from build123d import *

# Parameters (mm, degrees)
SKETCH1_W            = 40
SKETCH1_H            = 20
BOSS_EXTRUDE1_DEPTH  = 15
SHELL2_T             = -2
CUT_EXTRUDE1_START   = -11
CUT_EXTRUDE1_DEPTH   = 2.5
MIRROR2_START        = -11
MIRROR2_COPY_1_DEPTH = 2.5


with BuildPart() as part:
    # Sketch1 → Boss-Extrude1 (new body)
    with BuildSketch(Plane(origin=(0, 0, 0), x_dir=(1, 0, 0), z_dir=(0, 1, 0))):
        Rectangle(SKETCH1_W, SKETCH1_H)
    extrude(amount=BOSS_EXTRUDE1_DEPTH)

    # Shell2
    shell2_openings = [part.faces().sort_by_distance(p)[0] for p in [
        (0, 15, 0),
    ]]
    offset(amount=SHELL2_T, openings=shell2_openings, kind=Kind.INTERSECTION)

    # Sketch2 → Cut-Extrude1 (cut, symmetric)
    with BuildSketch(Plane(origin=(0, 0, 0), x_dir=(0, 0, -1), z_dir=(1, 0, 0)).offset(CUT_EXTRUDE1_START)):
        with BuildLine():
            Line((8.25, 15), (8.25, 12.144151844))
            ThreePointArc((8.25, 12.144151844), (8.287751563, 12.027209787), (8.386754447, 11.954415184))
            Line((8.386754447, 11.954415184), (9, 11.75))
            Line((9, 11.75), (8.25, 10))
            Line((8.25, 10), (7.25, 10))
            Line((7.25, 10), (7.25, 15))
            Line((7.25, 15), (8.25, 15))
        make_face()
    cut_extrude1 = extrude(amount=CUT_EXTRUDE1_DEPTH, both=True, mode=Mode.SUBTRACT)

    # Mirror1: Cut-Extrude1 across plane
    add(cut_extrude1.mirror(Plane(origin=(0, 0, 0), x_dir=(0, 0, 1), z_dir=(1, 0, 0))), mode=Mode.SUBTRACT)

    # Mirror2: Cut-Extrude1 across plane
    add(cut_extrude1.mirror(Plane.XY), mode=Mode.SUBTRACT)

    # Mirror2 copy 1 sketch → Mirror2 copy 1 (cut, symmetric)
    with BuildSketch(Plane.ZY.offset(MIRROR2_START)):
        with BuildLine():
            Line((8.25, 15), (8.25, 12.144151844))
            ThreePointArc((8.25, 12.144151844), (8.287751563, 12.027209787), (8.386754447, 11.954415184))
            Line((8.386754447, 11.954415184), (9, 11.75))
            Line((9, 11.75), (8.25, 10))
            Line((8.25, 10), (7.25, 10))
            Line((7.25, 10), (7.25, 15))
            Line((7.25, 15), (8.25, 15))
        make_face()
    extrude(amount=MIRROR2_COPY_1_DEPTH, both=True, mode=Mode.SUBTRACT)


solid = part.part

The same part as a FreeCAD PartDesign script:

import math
import FreeCAD as App
import Part
import Sketcher

V = App.Vector


def faces_at(feature, points):
    """Names of the faces that lie closest to the given points."""
    faces = feature.Shape.Faces
    near = lambda p: min(range(len(faces)), key=lambda i: faces[i].distToShape(Part.Vertex(*p))[0])
    return sorted({f"Face{near(p) + 1}" for p in points})


def add_polygon(sketch, points):
    """Adds a closed chain of lines whose ends are joined by coincident constraints."""
    first, n = sketch.GeometryCount, len(points)
    for a, b in zip(points, points[1:] + points[:1]):
        sketch.addGeometry(Part.LineSegment(App.Vector(*a, 0), App.Vector(*b, 0)), False)
    for i in range(n):
        sketch.addConstraint(Sketcher.Constraint("Coincident", first + i, 2, first + (i + 1) % n, 1))

doc = App.newDocument("Part")
body = doc.addObject("PartDesign::Body", "Body")

sketch1 = body.newObject("Sketcher::SketchObject", "Sketch")
sketch1.AttachmentSupport = (doc.getObject("XZ_Plane"), [""])
sketch1.MapMode = "FlatFace"
add_polygon(sketch1, [(-20, -10), (-20, 10), (20, 10), (20, -10)])
sketch1.addConstraint([
    Sketcher.Constraint("Vertical", 0),
    Sketcher.Constraint("Horizontal", 1),
    Sketcher.Constraint("Vertical", 2),
    Sketcher.Constraint("Horizontal", 3),
    Sketcher.Constraint("Symmetric", 0, 2, 2, 2, -1, 1),
    Sketcher.Constraint("DistanceX", 1, 1, 1, 2, 40.0),
    Sketcher.Constraint("DistanceY", 0, 1, 0, 2, 20.0),
])
pad1 = body.newObject("PartDesign::Pad", "Pad")
pad1.Profile = sketch1
pad1.Length = 15
pad1.Reversed = True
doc.recompute()

thickness = body.newObject("PartDesign::Thickness", "Thickness")
thickness.Base = (pad1, faces_at(pad1, [(0, 15, 0)]))
thickness.Value = 2
thickness.Reversed = True
thickness.Join = "Intersection"

sketch2 = body.newObject("Sketcher::SketchObject", "Sketch001")
sketch2.AttachmentSupport = (doc.getObject("YZ_Plane"), [""])
sketch2.MapMode = "FlatFace"
sketch2.AttachmentOffset = App.Placement(V(0, 0, -11), App.Rotation())
sketch2.addGeometry([
    Part.LineSegment(V(12.14, -8.25, 0), V(15, -8.25, 0)),
    Part.LineSegment(V(15, -8.25, 0), V(15, -7.25, 0)),
    Part.LineSegment(V(15, -7.25, 0), V(10, -7.25, 0)),
    Part.LineSegment(V(10, -7.25, 0), V(10, -8.25, 0)),
    Part.LineSegment(V(10, -8.25, 0), V(11.75, -9, 0)),
    Part.LineSegment(V(11.75, -9, 0), V(11.95, -8.39, 0)),
    Part.ArcOfCircle(Part.Circle(V(12.14, -8.45, 0), V(0, 0, 1), 0.2), math.radians(90), math.radians(162)),
], False)
sketch2.addConstraint([
    Sketcher.Constraint("Coincident", 0, 2, 1, 1),
    Sketcher.Constraint("Coincident", 1, 2, 2, 1),
    Sketcher.Constraint("Coincident", 2, 2, 3, 1),
    Sketcher.Constraint("Coincident", 3, 2, 4, 1),
    Sketcher.Constraint("Coincident", 4, 2, 5, 1),
    Sketcher.Constraint("Tangent", 5, 2, 6, 2),
    Sketcher.Constraint("Tangent", 6, 1, 0, 1),
    Sketcher.Constraint("Horizontal", 0),
    Sketcher.Constraint("Vertical", 1),
    Sketcher.Constraint("Horizontal", 2),
    Sketcher.Constraint("Vertical", 3),
    Sketcher.Constraint("Horizontal", 0, 2, 3, 2),
    Sketcher.Constraint("Radius", 6, 0.2),
    Sketcher.Constraint("DistanceX", 2, 2, 2, 1, 5.0),
    Sketcher.Constraint("DistanceY", 1, 1, 1, 2, 1.0),
    Sketcher.Constraint("DistanceX", -1, 1, 0, 2, 15.0),
    Sketcher.Constraint("DistanceY", 4, 2, -1, 1, 9.0),
    Sketcher.Constraint("DistanceY", 6, 3, -1, 1, 8.45),
    Sketcher.Constraint("DistanceX", -1, 1, 4, 2, 11.75),
    Sketcher.Constraint("DistanceX", 0, 1, 0, 2, 2.855848),
])
pocket1 = body.newObject("PartDesign::Pocket", "Pocket")
pocket1.Profile = sketch2
pocket1.Length = 5
pocket1.Midplane = True
doc.recompute()

mirrored = body.newObject("PartDesign::Mirrored", "Mirrored")
mirrored.Originals = [pocket1]
mirrored.MirrorPlane = (doc.getObject("YZ_Plane"), [""])
body.Tip = mirrored
doc.recompute()

mirrored2 = body.newObject("PartDesign::Mirrored", "Mirrored001")
mirrored2.Originals = [pocket1]
mirrored2.MirrorPlane = (doc.getObject("XY_Plane"), [""])
body.Tip = mirrored2

sketch3 = body.newObject("Sketcher::SketchObject", "Sketch002")
sketch3.AttachmentSupport = (doc.getObject("YZ_Plane"), [""])
sketch3.MapMode = "FlatFace"
sketch3.AttachmentOffset = App.Placement(V(0, 0, 11), App.Rotation())
sketch3.addGeometry([
    Part.LineSegment(V(12.14, 8.25, 0), V(15, 8.25, 0)),
    Part.LineSegment(V(15, 8.25, 0), V(15, 7.25, 0)),
    Part.LineSegment(V(15, 7.25, 0), V(10, 7.25, 0)),
    Part.LineSegment(V(10, 7.25, 0), V(10, 8.25, 0)),
    Part.LineSegment(V(10, 8.25, 0), V(11.75, 9, 0)),
    Part.LineSegment(V(11.75, 9, 0), V(11.95, 8.39, 0)),
    Part.ArcOfCircle(Part.Circle(V(12.14, 8.45, 0), V(0, 0, 1), 0.2), math.radians(-162), math.radians(-90)),
], False)
sketch3.addConstraint([
    Sketcher.Constraint("Coincident", 0, 2, 1, 1),
    Sketcher.Constraint("Coincident", 1, 2, 2, 1),
    Sketcher.Constraint("Coincident", 2, 2, 3, 1),
    Sketcher.Constraint("Coincident", 3, 2, 4, 1),
    Sketcher.Constraint("Coincident", 4, 2, 5, 1),
    Sketcher.Constraint("Tangent", 5, 2, 6, 1),
    Sketcher.Constraint("Tangent", 6, 2, 0, 1),
    Sketcher.Constraint("Horizontal", 0),
    Sketcher.Constraint("Vertical", 1),
    Sketcher.Constraint("Horizontal", 2),
    Sketcher.Constraint("Vertical", 3),
    Sketcher.Constraint("Horizontal", 0, 2, 3, 2),
    Sketcher.Constraint("Radius", 6, 0.2),
    Sketcher.Constraint("DistanceX", 2, 2, 2, 1, 5.0),
    Sketcher.Constraint("DistanceY", 1, 2, 1, 1, 1.0),
    Sketcher.Constraint("DistanceX", -1, 1, 0, 2, 15.0),
    Sketcher.Constraint("DistanceY", -1, 1, 4, 2, 9.0),
    Sketcher.Constraint("DistanceY", -1, 1, 6, 3, 8.45),
    Sketcher.Constraint("DistanceX", -1, 1, 4, 2, 11.75),
    Sketcher.Constraint("DistanceX", 0, 1, 0, 2, 2.855848),
])
pocket2 = body.newObject("PartDesign::Pocket", "Pocket001")
pocket2.Profile = sketch3
pocket2.Length = 5
pocket2.Midplane = True

doc.recompute()
